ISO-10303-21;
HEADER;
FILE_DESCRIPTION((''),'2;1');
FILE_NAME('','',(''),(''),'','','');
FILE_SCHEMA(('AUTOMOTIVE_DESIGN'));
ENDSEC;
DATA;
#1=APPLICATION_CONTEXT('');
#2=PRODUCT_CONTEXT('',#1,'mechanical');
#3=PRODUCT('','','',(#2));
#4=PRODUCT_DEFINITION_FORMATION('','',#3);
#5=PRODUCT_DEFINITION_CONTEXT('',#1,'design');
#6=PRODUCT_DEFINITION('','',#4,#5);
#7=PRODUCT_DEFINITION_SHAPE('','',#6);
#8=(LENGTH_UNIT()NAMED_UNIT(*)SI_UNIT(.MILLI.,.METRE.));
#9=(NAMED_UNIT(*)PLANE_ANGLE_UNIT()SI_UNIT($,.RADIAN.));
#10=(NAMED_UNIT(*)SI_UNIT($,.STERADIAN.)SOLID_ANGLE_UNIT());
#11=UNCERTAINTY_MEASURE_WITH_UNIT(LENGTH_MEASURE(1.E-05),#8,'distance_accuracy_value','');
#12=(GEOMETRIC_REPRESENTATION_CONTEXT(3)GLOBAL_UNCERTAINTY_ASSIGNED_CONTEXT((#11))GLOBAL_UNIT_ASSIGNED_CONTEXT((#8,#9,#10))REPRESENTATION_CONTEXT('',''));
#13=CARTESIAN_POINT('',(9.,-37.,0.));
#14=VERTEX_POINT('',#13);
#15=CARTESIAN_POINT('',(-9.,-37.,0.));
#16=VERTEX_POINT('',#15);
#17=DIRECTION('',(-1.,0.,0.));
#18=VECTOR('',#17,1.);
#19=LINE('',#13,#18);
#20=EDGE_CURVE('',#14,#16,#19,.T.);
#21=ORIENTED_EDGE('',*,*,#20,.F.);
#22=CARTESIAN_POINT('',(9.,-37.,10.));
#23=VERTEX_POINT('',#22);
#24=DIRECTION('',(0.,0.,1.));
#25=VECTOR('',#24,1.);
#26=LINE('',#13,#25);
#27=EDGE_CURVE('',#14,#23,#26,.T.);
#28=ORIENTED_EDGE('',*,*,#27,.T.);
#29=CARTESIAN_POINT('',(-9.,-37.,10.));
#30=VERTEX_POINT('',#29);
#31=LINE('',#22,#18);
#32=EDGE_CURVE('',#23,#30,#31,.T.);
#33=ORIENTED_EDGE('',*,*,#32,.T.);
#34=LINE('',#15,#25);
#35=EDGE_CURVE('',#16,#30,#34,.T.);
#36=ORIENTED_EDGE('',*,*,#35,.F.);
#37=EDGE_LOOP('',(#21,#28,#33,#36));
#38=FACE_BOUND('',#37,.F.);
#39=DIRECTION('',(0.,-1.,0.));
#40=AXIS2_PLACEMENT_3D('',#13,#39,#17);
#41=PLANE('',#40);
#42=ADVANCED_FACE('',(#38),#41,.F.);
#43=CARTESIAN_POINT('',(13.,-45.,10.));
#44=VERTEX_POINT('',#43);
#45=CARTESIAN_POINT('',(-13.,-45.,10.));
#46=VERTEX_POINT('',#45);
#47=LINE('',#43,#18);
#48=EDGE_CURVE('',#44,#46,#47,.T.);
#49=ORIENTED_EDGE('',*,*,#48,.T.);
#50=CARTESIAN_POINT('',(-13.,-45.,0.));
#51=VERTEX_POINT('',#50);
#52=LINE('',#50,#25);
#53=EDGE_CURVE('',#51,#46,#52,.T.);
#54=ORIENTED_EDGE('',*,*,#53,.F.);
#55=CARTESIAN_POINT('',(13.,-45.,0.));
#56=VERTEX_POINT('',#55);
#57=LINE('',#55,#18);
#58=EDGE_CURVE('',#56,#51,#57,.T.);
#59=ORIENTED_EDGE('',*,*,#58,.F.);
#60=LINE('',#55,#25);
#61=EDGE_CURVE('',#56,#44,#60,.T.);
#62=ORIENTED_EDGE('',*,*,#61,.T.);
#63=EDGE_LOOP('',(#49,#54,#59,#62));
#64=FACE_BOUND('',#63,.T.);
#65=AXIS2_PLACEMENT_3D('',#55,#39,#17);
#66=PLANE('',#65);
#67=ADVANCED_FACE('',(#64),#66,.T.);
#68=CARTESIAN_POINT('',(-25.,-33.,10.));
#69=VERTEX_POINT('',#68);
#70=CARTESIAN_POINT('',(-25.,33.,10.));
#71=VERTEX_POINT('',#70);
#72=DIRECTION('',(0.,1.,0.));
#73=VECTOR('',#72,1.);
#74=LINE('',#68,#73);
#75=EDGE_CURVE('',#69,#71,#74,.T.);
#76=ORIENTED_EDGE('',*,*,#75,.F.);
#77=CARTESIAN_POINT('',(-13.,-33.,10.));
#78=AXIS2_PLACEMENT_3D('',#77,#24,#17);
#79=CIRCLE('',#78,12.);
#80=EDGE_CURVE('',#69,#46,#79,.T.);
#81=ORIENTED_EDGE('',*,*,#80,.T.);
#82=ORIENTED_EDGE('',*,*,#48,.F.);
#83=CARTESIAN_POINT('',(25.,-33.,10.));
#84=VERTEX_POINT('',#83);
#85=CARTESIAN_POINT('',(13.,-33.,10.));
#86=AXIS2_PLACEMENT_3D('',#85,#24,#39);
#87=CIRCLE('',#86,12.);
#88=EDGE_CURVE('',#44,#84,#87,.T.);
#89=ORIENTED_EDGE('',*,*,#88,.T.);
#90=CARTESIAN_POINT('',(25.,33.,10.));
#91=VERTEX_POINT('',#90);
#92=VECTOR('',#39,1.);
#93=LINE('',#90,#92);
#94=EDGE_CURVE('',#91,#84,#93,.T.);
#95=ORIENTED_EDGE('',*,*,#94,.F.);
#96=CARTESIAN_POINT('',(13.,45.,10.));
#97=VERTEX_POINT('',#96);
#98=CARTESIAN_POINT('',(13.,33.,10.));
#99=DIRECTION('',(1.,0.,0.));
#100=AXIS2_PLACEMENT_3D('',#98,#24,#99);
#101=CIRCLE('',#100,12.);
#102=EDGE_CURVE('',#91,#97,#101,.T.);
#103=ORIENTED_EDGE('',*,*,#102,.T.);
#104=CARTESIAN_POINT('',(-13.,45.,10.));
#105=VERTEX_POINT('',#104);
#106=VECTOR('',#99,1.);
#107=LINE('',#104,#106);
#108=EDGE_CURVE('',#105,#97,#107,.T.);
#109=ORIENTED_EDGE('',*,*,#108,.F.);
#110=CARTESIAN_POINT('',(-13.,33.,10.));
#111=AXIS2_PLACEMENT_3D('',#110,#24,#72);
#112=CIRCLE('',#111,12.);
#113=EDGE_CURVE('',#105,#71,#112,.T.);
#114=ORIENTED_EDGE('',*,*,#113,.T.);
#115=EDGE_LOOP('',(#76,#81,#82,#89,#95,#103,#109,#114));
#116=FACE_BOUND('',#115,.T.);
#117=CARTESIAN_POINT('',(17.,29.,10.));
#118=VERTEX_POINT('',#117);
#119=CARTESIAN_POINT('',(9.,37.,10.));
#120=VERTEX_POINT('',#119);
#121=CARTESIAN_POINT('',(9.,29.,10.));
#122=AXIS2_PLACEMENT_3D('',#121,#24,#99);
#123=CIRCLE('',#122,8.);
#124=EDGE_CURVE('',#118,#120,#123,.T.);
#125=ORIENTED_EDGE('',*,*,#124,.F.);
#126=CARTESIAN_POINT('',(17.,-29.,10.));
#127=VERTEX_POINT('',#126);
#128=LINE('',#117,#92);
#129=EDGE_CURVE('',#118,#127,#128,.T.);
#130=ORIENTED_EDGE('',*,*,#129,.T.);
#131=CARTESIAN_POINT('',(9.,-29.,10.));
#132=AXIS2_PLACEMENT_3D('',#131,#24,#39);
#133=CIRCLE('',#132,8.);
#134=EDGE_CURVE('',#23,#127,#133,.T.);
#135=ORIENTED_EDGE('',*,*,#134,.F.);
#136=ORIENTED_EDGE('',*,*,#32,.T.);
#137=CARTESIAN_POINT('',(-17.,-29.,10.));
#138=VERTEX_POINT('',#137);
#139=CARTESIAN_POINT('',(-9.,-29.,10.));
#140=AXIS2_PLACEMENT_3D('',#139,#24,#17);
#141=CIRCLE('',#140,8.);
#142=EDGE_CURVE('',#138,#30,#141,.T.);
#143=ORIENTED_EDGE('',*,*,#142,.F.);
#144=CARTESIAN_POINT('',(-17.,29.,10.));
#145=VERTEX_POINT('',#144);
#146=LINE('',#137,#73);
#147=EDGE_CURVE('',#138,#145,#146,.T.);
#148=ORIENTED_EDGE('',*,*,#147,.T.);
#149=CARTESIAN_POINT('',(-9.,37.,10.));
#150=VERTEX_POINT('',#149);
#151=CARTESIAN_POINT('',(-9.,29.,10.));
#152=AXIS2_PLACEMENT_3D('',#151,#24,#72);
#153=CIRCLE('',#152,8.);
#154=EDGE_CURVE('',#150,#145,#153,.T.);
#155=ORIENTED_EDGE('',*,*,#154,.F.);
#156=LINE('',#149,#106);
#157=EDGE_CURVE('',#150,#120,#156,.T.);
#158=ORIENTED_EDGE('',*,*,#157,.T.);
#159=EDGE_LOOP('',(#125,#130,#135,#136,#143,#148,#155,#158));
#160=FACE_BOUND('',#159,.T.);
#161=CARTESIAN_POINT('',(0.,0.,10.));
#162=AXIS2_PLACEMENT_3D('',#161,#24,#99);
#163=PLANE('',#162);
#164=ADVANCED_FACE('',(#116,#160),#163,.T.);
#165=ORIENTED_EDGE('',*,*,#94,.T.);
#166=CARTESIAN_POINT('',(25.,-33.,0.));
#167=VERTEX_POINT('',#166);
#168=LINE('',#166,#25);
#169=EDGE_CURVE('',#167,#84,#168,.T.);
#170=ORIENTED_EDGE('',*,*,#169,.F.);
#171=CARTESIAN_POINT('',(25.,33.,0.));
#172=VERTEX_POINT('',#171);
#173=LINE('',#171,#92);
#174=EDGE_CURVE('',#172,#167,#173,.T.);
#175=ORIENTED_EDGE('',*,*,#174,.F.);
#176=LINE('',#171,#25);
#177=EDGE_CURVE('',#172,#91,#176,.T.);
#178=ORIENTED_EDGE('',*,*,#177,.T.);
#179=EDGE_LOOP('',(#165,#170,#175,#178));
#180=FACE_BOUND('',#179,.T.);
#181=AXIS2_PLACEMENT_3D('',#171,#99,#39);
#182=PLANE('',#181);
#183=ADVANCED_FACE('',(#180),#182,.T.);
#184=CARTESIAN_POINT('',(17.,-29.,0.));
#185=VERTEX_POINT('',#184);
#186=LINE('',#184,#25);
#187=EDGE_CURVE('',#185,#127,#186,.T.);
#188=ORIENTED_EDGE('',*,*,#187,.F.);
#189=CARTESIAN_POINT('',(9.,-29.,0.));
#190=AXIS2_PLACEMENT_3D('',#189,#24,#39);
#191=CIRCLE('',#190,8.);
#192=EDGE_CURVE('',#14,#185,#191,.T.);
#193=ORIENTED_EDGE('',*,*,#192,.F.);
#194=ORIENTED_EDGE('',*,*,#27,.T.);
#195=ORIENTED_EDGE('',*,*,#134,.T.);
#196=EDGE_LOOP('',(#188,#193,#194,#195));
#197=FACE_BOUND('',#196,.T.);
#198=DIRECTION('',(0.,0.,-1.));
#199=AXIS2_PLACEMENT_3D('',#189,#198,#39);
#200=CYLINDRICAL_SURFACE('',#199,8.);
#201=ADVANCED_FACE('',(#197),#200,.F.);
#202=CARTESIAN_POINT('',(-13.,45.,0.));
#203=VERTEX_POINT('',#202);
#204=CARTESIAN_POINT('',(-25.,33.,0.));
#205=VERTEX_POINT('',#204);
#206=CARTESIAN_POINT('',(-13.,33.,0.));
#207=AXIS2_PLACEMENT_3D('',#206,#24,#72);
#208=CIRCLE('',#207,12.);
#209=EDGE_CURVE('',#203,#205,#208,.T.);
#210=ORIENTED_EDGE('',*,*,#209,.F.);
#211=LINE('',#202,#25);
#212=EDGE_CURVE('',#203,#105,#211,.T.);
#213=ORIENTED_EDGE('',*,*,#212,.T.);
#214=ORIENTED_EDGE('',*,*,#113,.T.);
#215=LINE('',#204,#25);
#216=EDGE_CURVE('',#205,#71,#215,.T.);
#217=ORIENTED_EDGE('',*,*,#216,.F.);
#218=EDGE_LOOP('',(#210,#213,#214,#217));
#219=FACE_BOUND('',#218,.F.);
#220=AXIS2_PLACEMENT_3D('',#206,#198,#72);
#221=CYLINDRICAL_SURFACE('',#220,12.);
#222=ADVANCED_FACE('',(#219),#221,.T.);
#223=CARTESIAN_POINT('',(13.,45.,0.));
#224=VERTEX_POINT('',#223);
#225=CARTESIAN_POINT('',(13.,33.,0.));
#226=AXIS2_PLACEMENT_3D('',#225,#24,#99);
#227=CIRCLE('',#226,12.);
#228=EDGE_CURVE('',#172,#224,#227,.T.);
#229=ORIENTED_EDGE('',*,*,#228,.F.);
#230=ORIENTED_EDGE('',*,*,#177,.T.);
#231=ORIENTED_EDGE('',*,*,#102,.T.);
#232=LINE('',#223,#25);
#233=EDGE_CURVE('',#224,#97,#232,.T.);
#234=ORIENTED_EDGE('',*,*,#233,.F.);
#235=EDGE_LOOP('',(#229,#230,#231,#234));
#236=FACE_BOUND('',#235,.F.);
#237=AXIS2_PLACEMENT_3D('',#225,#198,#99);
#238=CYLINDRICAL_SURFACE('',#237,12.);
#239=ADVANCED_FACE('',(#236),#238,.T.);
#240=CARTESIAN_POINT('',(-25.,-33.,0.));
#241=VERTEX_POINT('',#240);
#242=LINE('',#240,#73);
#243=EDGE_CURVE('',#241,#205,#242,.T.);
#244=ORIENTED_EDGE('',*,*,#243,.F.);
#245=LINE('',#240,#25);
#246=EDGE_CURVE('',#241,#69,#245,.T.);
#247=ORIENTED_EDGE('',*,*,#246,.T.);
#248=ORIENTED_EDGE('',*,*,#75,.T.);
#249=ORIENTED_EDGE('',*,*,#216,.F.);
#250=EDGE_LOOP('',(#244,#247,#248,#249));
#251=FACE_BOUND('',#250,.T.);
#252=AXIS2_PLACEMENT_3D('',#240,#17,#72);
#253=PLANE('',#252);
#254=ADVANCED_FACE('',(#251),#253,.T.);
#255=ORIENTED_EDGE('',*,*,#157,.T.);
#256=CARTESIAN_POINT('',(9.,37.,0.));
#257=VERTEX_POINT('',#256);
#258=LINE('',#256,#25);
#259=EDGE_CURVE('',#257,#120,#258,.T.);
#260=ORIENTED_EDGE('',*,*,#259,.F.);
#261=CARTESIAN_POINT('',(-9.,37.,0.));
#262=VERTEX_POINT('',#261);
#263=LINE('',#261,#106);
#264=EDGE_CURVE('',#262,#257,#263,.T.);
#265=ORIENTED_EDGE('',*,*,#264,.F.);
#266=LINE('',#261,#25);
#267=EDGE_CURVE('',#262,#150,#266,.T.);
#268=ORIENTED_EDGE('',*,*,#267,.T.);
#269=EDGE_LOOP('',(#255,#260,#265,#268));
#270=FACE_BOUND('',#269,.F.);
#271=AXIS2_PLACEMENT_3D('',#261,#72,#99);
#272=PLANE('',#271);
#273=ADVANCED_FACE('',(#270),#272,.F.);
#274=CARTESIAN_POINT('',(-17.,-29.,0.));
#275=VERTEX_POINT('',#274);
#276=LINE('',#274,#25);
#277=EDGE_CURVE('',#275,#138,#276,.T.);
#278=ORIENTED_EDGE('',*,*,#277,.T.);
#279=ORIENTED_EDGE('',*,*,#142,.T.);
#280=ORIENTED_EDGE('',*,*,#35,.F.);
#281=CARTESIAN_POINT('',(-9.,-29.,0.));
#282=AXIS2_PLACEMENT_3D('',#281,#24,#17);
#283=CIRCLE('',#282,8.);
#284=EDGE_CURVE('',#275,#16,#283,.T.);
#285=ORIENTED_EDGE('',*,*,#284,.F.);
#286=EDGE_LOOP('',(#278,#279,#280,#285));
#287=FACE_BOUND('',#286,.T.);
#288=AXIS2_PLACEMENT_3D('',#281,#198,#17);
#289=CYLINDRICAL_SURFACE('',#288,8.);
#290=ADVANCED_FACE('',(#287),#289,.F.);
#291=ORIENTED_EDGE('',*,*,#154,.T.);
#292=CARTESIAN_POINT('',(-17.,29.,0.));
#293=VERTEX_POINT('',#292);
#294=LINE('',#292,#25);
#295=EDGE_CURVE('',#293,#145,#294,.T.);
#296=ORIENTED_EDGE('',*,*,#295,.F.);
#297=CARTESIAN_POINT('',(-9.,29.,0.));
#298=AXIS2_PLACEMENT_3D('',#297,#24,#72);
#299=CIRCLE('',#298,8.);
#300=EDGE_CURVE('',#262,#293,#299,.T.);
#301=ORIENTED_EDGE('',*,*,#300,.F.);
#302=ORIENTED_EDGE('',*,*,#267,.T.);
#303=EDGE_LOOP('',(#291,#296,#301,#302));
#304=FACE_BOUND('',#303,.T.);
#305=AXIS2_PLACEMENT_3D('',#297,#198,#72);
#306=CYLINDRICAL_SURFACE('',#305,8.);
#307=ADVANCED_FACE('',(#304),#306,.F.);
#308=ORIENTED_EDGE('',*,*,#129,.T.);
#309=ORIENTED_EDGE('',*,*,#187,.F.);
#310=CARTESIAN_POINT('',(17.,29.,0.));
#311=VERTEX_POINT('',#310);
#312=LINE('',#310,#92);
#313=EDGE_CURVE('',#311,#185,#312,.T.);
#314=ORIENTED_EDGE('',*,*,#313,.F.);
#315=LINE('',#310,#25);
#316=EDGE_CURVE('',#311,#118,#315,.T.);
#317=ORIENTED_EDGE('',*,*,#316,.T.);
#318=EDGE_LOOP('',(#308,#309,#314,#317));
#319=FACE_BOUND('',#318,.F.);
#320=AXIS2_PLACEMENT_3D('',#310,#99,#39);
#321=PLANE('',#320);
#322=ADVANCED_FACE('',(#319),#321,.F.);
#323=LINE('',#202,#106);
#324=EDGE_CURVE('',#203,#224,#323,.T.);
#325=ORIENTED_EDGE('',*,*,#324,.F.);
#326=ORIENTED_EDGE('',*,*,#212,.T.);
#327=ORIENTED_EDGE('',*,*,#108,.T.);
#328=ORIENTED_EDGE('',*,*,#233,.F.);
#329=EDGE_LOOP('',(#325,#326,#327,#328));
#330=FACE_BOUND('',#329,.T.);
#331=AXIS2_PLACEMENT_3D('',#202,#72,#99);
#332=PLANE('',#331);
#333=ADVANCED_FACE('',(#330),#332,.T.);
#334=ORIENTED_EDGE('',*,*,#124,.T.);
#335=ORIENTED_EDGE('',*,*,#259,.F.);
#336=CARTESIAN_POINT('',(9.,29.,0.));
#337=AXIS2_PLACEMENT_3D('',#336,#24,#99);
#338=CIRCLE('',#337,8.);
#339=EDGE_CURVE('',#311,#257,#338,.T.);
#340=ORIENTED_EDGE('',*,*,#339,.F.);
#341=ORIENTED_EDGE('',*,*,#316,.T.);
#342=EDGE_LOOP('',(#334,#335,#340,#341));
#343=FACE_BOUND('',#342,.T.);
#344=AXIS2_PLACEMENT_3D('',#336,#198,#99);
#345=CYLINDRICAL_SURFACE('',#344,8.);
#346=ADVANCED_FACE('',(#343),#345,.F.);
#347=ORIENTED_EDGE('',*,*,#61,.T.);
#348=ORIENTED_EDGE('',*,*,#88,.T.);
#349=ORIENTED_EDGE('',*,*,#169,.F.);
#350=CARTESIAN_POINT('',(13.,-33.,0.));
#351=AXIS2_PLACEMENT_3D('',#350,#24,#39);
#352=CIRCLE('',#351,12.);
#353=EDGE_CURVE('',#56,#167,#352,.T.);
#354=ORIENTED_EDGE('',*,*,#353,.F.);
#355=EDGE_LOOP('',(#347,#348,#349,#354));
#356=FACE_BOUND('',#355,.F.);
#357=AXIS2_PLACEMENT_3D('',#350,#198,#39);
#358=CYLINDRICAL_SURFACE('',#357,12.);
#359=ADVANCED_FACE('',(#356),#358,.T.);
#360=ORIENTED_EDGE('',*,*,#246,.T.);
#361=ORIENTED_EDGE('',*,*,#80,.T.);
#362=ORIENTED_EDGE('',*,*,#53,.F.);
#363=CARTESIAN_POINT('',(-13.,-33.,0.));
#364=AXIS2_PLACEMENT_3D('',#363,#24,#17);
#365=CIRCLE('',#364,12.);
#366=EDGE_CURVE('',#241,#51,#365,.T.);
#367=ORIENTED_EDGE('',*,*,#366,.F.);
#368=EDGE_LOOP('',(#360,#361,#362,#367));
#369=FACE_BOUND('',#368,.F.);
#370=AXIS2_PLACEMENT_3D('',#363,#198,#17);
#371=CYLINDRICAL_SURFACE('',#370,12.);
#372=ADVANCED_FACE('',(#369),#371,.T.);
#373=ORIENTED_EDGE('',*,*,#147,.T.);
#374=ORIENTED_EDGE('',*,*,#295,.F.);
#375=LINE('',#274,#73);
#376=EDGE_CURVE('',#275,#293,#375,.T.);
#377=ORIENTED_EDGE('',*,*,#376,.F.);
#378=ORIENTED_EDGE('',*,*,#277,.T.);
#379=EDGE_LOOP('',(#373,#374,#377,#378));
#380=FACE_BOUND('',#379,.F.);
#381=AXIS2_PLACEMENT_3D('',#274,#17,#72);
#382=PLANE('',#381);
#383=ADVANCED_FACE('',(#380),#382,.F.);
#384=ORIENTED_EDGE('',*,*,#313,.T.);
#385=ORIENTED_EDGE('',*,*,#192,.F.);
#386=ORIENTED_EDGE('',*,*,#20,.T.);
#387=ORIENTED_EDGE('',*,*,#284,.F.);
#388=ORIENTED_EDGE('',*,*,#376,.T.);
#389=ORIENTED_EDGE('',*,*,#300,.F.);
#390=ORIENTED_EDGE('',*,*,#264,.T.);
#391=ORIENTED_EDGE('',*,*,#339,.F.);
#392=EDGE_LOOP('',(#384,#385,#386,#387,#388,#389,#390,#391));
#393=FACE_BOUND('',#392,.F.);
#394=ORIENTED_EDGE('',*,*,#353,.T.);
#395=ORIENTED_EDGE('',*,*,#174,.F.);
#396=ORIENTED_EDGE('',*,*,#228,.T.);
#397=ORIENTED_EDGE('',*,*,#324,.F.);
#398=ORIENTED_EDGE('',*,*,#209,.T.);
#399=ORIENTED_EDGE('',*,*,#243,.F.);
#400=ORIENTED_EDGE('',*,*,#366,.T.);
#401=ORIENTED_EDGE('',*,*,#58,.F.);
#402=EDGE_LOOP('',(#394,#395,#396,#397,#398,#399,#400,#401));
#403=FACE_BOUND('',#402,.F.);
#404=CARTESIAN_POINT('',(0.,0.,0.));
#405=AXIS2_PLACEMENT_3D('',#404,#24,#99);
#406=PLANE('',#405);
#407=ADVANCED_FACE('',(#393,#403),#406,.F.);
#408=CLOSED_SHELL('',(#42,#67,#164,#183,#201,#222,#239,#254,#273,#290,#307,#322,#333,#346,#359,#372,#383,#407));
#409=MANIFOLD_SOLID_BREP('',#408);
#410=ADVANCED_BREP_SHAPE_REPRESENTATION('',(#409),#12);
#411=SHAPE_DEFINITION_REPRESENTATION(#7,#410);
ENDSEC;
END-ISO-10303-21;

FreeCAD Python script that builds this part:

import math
import FreeCAD as App
import Part
import Sketcher

doc = App.newDocument("Part")
params = doc.addObject("Spreadsheet::Sheet", "Params")
for row, (alias, value) in enumerate([
    ("sketch1_radius", "12 mm"),
    ("sketch1_radius2", "8 mm"),
    ("pad1_length", "10 mm"),
], start=1):
    params.set(f"A{row}", alias)
    params.set(f"B{row}", "=" + value)
    params.setAlias(f"B{row}", alias)

body = doc.addObject("PartDesign::Body", "Body")

# Sketch on XY plane
sketch1 = body.newObject("Sketcher::SketchObject", "Sketch")
sketch1.AttachmentSupport = (doc.getObject("XY_Plane"), [""])
sketch1.MapMode = "FlatFace"
sketch1.addGeometry([
    Part.LineSegment(App.Vector(-25, 33, 0), App.Vector(-25, -33, 0)),  # 0
    Part.ArcOfCircle(Part.Circle(App.Vector(-13, -33, 0), App.Vector(0, 0, 1), 12), math.radians(180), math.radians(270)),  # 1
    Part.LineSegment(App.Vector(-13, -45, 0), App.Vector(13, -45, 0)),  # 2
    Part.ArcOfCircle(Part.Circle(App.Vector(13, -33, 0), App.Vector(0, 0, 1), 12), math.radians(-90), math.radians(0)),  # 3
    Part.LineSegment(App.Vector(25, -33, 0), App.Vector(25, 33, 0)),  # 4
    Part.ArcOfCircle(Part.Circle(App.Vector(13, 33, 0), App.Vector(0, 0, 1), 12), math.radians(0), math.radians(90)),  # 5
    Part.LineSegment(App.Vector(13, 45, 0), App.Vector(-13, 45, 0)),  # 6
    Part.ArcOfCircle(Part.Circle(App.Vector(-13, 33, 0), App.Vector(0, 0, 1), 12), math.radians(90), math.radians(180)),  # 7
    Part.ArcOfCircle(Part.Circle(App.Vector(-9, 29, 0), App.Vector(0, 0, 1), 8), math.radians(90), math.radians(180)),  # 8
    Part.LineSegment(App.Vector(-9, 37, 0), App.Vector(9, 37, 0)),  # 9
    Part.ArcOfCircle(Part.Circle(App.Vector(9, 29, 0), App.Vector(0, 0, 1), 8), math.radians(0), math.radians(90)),  # 10
    Part.LineSegment(App.Vector(17, 29, 0), App.Vector(17, -29, 0)),  # 11
    Part.ArcOfCircle(Part.Circle(App.Vector(9, -29, 0), App.Vector(0, 0, 1), 8), math.radians(-90), math.radians(0)),  # 12
    Part.LineSegment(App.Vector(9, -37, 0), App.Vector(-9, -37, 0)),  # 13
    Part.ArcOfCircle(Part.Circle(App.Vector(-9, -29, 0), App.Vector(0, 0, 1), 8), math.radians(180), math.radians(270)),  # 14
    Part.LineSegment(App.Vector(-17, -29, 0), App.Vector(-17, 29, 0)),  # 15
], False)
sketch1.addConstraint([
    Sketcher.Constraint("Tangent", 0, 2, 1, 1),
    Sketcher.Constraint("Tangent", 1, 2, 2, 1),
    Sketcher.Constraint("Tangent", 2, 2, 3, 1),
    Sketcher.Constraint("Tangent", 3, 2, 4, 1),
    Sketcher.Constraint("Tangent", 4, 2, 5, 1),
    Sketcher.Constraint("Tangent", 5, 2, 6, 1),
    Sketcher.Constraint("Tangent", 6, 2, 7, 1),
    Sketcher.Constraint("Tangent", 7, 2, 0, 1),
    Sketcher.Constraint("Tangent", 8, 1, 9, 1),
    Sketcher.Constraint("Tangent", 9, 2, 10, 2),
    Sketcher.Constraint("Tangent", 10, 1, 11, 1),
    Sketcher.Constraint("Tangent", 11, 2, 12, 2),
    Sketcher.Constraint("Tangent", 12, 1, 13, 1),
    Sketcher.Constraint("Tangent", 13, 2, 14, 2),
    Sketcher.Constraint("Tangent", 14, 1, 15, 1),
    Sketcher.Constraint("Tangent", 15, 2, 8, 2),
    Sketcher.Constraint("Vertical", 0),
    Sketcher.Constraint("Horizontal", 2),
    Sketcher.Constraint("Vertical", 4),
    Sketcher.Constraint("Horizontal", 6),
    Sketcher.Constraint("Horizontal", 9),
    Sketcher.Constraint("Vertical", 11),
    Sketcher.Constraint("Horizontal", 13),
    Sketcher.Constraint("Vertical", 15),
    Sketcher.Constraint("Equal", 1, 3),
    Sketcher.Constraint("Equal", 3, 5),
    Sketcher.Constraint("Equal", 5, 7),
    Sketcher.Constraint("Equal", 8, 10),
    Sketcher.Constraint("Equal", 10, 12),
    Sketcher.Constraint("Equal", 12, 14),
    Sketcher.Constraint("Symmetric", 1, 3, 5, 3, -1, 1),
    Sketcher.Constraint("Symmetric", 8, 3, 12, 3, -1, 1),
    Sketcher.Constraint("Radius", 1, 12.0),
    Sketcher.Constraint("Radius", 8, 8.0),
    Sketcher.Constraint("DistanceX", 0, 2, -1, 1, 25.0),
    Sketcher.Constraint("DistanceY", 1, 2, -1, 1, 45.0),
    Sketcher.Constraint("DistanceY", 8, 1, 6, 2, 8.0),
    Sketcher.Constraint("DistanceX", 10, 1, 4, 2, 8.0),
])
sketch1.setExpression("Constraints[32]", "Params.sketch1_radius")
sketch1.setExpression("Constraints[33]", "Params.sketch1_radius2")
pad1 = body.newObject("PartDesign::Pad", "Pad")
pad1.Profile = sketch1
pad1.setExpression("Length", "Params.pad1_length")

doc.recompute()
